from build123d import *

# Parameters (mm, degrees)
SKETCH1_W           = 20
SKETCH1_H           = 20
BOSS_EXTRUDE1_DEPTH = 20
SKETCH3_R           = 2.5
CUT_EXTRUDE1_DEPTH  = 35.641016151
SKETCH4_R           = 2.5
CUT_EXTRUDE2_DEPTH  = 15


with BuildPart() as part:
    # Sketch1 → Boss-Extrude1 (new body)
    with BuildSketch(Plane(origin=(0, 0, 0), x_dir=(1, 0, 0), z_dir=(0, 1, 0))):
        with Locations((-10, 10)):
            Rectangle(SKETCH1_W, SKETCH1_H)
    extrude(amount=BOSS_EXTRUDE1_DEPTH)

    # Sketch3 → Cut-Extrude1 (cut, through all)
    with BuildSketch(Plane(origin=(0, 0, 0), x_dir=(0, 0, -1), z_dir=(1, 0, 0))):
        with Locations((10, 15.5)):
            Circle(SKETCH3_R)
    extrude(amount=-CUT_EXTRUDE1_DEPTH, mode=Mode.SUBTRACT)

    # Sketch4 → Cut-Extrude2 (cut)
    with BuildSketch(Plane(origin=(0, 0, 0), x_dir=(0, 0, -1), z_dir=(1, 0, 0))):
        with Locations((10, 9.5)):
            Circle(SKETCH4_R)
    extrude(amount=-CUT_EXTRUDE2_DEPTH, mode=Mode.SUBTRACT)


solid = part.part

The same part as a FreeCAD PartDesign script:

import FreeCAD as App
import Part
import Sketcher

V = App.Vector
Q = App.Units.Quantity

doc = App.newDocument("Part")
body = doc.addObject("PartDesign::Body", "Body")

# Sketch on XZ plane
sketch1 = body.newObject("Sketcher::SketchObject", "Sketch")
sketch1.AttachmentSupport = (doc.getObject("XZ_Plane"), [""])
sketch1.MapMode = "FlatFace"
sketch1.addGeometry([
    Part.LineSegment(V(-20, -20, 0), V(-20, 0, 0)),
    Part.LineSegment(V(-20, 0, 0), V(0, 0, 0)),
    Part.LineSegment(V(0, 0, 0), V(0, -20, 0)),
    Part.LineSegment(V(0, -20, 0), V(-20, -20, 0)),
], False)
sketch1.addConstraint([
    Sketcher.Constraint("Coincident", 0, 2, 1, 1),
    Sketcher.Constraint("Coincident", 1, 2, 2, 1),
    Sketcher.Constraint("Coincident", 2, 2, 3, 1),
    Sketcher.Constraint("Coincident", 3, 2, 0, 1),
    Sketcher.Constraint("Vertical", 0),
    Sketcher.Constraint("Horizontal", 1),
    Sketcher.Constraint("Vertical", 2),
    Sketcher.Constraint("Horizontal", 3),
    Sketcher.Constraint("Coincident", 1, 2, -1, 1),
    Sketcher.Constraint("Equal", 3, 0),
    Sketcher.Constraint("DistanceX", 1, 1, 1, 2, Q("20 mm")),
])
pad1 = body.newObject("PartDesign::Pad", "Pad")
pad1.Profile = sketch1
pad1.Length = 20
pad1.Reversed = True

# Sketch on YZ plane
sketch2 = body.newObject("Sketcher::SketchObject", "Sketch001")
sketch2.AttachmentSupport = (doc.getObject("YZ_Plane"), [""])
sketch2.MapMode = "FlatFace"
sketch2.addGeometry(Part.Circle(V(15.5, -10, 0), V(0, 0, 1), 2.5), False)
sketch2.addConstraint([
    Sketcher.Constraint("Diameter", 0, Q("5 mm")),
    Sketcher.Constraint("DistanceY", 0, 3, -1, 1, Q("10 mm")),
    Sketcher.Constraint("DistanceX", -1, 1, 0, 3, Q("15.5 mm")),
])
pocket1 = body.newObject("PartDesign::Pocket", "Pocket")
pocket1.Profile = sketch2
pocket1.Type = "ThroughAll"

# Sketch on YZ plane
sketch3 = body.newObject("Sketcher::SketchObject", "Sketch002")
sketch3.AttachmentSupport = (doc.getObject("YZ_Plane"), [""])
sketch3.MapMode = "FlatFace"
sketch3.addGeometry(Part.Circle(V(9.5, -10, 0), V(0, 0, 1), 2.5), False)
sketch3.addConstraint([
    Sketcher.Constraint("Diameter", 0, Q("5 mm")),
    Sketcher.Constraint("DistanceY", 0, 3, -1, 1, Q("10 mm")),
    Sketcher.Constraint("DistanceX", -1, 1, 0, 3, Q("9.5 mm")),
])
pocket2 = body.newObject("PartDesign::Pocket", "Pocket001")
pocket2.Profile = sketch3
pocket2.Length = 15

doc.recompute()
